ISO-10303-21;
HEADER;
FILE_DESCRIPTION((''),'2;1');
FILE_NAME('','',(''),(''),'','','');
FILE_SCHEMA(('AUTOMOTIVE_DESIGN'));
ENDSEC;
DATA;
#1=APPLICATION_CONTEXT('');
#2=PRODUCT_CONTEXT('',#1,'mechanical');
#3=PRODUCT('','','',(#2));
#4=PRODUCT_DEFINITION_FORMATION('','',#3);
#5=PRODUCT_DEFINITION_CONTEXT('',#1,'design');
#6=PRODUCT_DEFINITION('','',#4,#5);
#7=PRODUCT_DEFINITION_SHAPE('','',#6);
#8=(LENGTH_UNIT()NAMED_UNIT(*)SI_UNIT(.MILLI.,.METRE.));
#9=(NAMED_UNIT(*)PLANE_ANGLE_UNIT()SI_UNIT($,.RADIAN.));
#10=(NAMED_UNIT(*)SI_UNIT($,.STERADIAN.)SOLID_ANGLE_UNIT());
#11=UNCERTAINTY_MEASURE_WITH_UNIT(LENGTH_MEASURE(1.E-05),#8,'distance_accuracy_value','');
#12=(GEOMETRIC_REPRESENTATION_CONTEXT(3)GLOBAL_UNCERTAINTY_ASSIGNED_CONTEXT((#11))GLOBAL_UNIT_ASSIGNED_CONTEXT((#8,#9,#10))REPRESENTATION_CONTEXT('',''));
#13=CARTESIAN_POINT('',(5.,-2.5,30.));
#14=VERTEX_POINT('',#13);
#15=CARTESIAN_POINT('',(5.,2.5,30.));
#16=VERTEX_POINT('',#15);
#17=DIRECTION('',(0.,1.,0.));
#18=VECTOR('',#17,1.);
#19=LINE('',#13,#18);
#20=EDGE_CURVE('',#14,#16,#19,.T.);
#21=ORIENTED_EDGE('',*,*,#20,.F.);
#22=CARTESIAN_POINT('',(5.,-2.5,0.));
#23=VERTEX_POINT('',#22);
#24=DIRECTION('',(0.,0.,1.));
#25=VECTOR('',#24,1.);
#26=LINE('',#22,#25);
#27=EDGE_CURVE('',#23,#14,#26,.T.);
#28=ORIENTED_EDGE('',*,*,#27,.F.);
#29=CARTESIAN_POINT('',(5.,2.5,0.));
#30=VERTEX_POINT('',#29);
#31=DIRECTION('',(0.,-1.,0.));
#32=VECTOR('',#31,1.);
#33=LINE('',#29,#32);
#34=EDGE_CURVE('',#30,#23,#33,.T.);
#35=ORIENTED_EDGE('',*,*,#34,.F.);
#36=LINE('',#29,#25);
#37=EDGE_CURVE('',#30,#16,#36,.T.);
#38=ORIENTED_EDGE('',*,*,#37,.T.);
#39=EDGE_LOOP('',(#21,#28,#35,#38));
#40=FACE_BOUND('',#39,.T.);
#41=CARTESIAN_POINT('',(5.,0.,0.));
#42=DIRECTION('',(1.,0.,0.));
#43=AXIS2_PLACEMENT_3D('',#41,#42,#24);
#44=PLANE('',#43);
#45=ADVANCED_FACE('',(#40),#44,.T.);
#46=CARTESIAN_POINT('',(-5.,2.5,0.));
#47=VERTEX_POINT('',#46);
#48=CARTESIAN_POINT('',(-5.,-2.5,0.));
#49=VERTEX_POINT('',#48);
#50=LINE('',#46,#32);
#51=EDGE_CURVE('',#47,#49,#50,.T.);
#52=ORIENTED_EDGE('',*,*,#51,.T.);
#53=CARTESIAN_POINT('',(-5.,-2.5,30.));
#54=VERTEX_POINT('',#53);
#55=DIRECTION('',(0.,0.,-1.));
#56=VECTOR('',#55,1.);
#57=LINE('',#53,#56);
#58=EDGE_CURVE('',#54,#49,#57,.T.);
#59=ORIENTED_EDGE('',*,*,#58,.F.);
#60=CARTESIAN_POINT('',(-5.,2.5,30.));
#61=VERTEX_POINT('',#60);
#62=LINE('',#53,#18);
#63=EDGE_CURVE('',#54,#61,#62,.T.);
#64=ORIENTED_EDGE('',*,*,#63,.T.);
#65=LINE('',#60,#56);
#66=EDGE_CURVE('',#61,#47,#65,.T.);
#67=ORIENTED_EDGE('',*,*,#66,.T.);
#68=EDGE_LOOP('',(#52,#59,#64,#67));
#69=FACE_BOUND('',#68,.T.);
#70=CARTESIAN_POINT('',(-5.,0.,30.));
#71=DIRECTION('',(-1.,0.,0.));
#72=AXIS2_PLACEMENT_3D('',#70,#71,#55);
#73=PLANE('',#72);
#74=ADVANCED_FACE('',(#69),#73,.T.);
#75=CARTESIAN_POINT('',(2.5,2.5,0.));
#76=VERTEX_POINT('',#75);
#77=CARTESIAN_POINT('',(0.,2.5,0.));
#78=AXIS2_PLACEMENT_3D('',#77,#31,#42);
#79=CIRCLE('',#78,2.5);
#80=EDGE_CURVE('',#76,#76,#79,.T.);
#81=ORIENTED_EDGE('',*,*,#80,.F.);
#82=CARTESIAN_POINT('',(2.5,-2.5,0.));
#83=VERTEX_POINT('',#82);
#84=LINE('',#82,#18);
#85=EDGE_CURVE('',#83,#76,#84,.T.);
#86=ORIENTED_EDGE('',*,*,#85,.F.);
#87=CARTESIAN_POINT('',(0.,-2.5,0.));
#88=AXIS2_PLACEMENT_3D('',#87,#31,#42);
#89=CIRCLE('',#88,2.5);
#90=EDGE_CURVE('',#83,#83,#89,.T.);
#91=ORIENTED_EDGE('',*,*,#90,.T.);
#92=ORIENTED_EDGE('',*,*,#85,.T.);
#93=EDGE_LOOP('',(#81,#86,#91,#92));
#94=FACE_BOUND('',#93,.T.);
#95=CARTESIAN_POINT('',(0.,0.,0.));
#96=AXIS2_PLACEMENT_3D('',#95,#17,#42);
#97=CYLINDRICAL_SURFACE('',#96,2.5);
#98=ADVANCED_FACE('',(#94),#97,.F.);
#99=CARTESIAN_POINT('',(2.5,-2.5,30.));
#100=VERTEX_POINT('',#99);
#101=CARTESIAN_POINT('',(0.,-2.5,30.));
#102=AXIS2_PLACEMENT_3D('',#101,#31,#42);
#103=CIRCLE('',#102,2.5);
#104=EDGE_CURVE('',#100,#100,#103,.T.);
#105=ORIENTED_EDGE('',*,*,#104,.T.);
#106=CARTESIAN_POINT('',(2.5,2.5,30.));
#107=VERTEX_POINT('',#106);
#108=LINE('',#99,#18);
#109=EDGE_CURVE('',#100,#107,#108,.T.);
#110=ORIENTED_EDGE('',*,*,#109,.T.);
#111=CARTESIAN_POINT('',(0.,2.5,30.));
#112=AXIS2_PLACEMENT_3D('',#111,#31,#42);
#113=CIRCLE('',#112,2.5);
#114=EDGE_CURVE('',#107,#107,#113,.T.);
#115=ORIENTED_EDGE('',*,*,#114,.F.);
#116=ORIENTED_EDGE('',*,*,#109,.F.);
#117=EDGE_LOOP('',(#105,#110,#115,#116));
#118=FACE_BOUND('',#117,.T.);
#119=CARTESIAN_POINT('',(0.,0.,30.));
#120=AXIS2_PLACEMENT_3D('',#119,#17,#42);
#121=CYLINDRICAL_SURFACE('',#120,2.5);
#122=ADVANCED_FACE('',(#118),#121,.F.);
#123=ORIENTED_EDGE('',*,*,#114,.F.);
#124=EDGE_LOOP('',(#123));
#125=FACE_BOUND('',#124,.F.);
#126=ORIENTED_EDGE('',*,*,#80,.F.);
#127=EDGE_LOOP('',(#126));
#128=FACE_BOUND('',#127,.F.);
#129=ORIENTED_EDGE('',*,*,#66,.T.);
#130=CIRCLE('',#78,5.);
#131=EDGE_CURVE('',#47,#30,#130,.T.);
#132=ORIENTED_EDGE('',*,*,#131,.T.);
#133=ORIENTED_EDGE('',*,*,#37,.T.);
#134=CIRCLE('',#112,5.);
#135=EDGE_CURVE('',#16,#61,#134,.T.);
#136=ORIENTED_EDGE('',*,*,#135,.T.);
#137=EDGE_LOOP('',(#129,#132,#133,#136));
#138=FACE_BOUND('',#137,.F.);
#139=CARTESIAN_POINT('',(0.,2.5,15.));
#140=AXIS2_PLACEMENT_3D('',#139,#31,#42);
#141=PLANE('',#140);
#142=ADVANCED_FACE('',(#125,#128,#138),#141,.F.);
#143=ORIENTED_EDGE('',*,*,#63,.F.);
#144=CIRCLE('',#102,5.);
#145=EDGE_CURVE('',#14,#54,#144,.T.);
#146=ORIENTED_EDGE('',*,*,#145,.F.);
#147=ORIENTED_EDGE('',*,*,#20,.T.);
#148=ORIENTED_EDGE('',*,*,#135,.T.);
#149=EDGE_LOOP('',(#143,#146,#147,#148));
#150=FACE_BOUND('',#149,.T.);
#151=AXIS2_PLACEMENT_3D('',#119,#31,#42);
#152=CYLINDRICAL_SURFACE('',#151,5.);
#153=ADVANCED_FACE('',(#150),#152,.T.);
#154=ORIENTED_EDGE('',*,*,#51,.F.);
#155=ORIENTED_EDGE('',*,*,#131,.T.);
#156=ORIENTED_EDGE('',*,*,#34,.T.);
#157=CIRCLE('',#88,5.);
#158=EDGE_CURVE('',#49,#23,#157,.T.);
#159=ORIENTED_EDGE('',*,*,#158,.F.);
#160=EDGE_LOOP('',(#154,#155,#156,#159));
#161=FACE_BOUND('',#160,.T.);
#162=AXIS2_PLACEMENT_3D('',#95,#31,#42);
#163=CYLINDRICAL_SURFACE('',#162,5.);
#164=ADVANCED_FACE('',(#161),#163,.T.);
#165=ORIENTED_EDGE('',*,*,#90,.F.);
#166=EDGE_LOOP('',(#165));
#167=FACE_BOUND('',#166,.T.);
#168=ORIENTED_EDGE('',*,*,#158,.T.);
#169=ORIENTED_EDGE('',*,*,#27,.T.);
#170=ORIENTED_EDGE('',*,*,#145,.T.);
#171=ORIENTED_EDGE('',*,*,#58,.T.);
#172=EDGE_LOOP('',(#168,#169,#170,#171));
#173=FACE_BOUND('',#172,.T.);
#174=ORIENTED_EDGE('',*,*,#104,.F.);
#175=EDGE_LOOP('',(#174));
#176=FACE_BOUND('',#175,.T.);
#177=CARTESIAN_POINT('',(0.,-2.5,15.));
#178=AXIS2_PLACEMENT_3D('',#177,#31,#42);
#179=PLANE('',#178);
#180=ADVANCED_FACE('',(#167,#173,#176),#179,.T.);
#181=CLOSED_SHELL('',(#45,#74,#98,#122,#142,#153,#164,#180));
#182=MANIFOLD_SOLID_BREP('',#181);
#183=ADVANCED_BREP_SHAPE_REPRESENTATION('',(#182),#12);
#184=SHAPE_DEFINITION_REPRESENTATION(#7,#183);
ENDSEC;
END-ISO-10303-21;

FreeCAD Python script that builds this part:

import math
import FreeCAD as App
import Part
import Sketcher

doc = App.newDocument("Part")
body = doc.addObject("PartDesign::Body", "Body")

# Sketch on XZ plane
sketch1 = body.newObject("Sketcher::SketchObject", "Sketch")
sketch1.AttachmentSupport = (doc.getObject("XZ_Plane"), [""])
sketch1.MapMode = "FlatFace"
sketch1.addGeometry(Part.LineSegment(App.Vector(-5, 30, 0), App.Vector(-5, 0, 0)), False)
sketch1.addGeometry(Part.ArcOfCircle(Part.Circle(App.Vector(0, 0, 0), App.Vector(0, 0, 1), 5), math.radians(180), math.radians(360)), False)
sketch1.addGeometry(Part.LineSegment(App.Vector(5, 0, 0), App.Vector(5, 30, 0)), False)
sketch1.addGeometry(Part.ArcOfCircle(Part.Circle(App.Vector(0, 30, 0), App.Vector(0, 0, 1), 5), math.radians(0), math.radians(180)), False)
sketch1.addGeometry(Part.Circle(App.Vector(0, 0, 0), App.Vector(0, 0, 1), 2.5), False)
sketch1.addGeometry(Part.Circle(App.Vector(0, 30, 0), App.Vector(0, 0, 1), 2.5), False)
sketch1.addConstraint(Sketcher.Constraint("Tangent", 0, 2, 1, 1))
sketch1.addConstraint(Sketcher.Constraint("Tangent", 1, 2, 2, 1))
sketch1.addConstraint(Sketcher.Constraint("Tangent", 2, 2, 3, 1))
sketch1.addConstraint(Sketcher.Constraint("Tangent", 3, 2, 0, 1))
sketch1.addConstraint(Sketcher.Constraint("Vertical", 0))
sketch1.addConstraint(Sketcher.Constraint("Vertical", 2))
sketch1.addConstraint(Sketcher.Constraint("Coincident", 1, 3, -1, 1))
sketch1.addConstraint(Sketcher.Constraint("Coincident", 4, 3, -1, 1))
sketch1.addConstraint(Sketcher.Constraint("Coincident", 5, 3, 3, 3))
sketch1.addConstraint(Sketcher.Constraint("Equal", 4, 5))
sketch1.addConstraint(Sketcher.Constraint("Diameter", 4, 5.0))
sketch1.addConstraint(Sketcher.Constraint("Radius", 1, 5.0))
sketch1.addConstraint(Sketcher.Constraint("DistanceY", 0, 2, 0, 1, 30.0))
pad1 = body.newObject("PartDesign::Pad", "Pad")
pad1.Profile = sketch1
pad1.Length = 5
pad1.Midplane = True

doc.recompute()
